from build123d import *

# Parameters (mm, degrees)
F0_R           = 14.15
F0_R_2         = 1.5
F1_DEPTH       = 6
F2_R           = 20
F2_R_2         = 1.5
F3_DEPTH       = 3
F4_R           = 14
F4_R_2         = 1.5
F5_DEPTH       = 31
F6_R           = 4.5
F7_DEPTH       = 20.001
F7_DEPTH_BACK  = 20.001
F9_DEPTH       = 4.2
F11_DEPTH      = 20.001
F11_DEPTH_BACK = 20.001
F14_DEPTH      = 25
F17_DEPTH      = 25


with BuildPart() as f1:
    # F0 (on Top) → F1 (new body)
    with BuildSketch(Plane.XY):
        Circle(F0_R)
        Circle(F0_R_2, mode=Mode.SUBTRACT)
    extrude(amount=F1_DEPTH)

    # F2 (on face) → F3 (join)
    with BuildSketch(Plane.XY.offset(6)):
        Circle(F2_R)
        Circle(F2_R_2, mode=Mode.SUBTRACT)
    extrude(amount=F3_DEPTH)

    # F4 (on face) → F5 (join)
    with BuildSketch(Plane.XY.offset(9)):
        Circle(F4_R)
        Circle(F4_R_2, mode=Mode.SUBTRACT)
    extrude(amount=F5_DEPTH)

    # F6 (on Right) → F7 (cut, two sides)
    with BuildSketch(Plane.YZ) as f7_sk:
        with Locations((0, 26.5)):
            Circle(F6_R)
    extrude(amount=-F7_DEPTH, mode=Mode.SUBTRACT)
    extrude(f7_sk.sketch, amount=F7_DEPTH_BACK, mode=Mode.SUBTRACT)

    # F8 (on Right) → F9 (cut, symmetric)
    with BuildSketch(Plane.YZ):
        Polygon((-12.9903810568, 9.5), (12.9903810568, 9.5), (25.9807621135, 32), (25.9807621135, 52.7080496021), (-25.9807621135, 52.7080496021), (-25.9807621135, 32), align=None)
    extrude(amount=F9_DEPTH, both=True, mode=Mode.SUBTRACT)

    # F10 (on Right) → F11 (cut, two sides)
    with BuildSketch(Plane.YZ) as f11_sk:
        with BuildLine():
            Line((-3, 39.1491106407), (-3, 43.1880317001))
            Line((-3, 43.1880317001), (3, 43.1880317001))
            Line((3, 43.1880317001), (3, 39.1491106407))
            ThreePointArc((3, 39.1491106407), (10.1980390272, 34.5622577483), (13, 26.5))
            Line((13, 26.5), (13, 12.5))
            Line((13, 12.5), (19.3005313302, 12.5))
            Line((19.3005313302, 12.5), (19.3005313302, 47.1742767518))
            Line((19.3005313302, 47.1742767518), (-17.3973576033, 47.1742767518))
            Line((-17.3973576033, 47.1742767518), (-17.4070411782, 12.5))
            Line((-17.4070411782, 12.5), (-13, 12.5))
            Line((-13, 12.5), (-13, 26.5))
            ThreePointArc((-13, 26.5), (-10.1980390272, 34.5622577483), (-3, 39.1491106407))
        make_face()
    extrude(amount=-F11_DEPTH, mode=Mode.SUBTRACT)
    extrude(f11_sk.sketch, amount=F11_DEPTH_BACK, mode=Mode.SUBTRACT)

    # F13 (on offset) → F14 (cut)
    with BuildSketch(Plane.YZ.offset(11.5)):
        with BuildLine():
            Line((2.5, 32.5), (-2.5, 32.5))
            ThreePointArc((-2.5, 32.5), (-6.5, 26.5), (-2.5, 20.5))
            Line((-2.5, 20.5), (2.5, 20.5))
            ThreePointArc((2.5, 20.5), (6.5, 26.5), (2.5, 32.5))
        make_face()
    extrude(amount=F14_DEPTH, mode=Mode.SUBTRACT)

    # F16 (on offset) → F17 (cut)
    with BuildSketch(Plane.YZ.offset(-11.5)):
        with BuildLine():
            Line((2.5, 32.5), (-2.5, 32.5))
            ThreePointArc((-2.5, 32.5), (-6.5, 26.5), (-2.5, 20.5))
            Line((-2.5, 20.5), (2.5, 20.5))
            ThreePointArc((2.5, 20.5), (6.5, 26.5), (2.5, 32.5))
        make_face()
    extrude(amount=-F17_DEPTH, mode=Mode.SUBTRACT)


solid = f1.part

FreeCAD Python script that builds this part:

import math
import FreeCAD as App
import Part
import Sketcher

V = App.Vector
Q = App.Units.Quantity


def add_polygon(sketch, points):
    """Adds a closed chain of lines whose ends are joined by coincident constraints."""
    first, n = sketch.GeometryCount, len(points)
    for a, b in zip(points, points[1:] + points[:1]):
        sketch.addGeometry(Part.LineSegment(App.Vector(*a, 0), App.Vector(*b, 0)), False)
    for i in range(n):
        sketch.addConstraint(Sketcher.Constraint("Coincident", first + i, 2, first + (i + 1) % n, 1))

doc = App.newDocument("Part")
body = doc.addObject("PartDesign::Body", "Body")

# Sketch on XY plane
sketch1 = body.newObject("Sketcher::SketchObject", "Sketch")
sketch1.AttachmentSupport = (doc.getObject("XY_Plane"), [""])
sketch1.MapMode = "FlatFace"
sketch1.addGeometry([
    Part.Circle(V(0, 0, 0), V(0, 0, 1), 14.2),
    Part.Circle(V(0, 0, 0), V(0, 0, 1), 1.5),
], False)
sketch1.addConstraint([
    Sketcher.Constraint("Coincident", 0, 3, -1, 1),
    Sketcher.Constraint("Coincident", 1, 3, -1, 1),
    Sketcher.Constraint("Diameter", 1, Q("3 mm")),
    Sketcher.Constraint("Diameter", 0, Q("28.3 mm")),
])
pad1 = body.newObject("PartDesign::Pad", "Pad")
pad1.Profile = sketch1
pad1.Length = 6

# Sketch on XY plane
sketch2 = body.newObject("Sketcher::SketchObject", "Sketch001")
sketch2.AttachmentSupport = (doc.getObject("XY_Plane"), [""])
sketch2.MapMode = "FlatFace"
sketch2.AttachmentOffset = App.Placement(V(0, 0, 6), App.Rotation())
sketch2.addGeometry([
    Part.Circle(V(0, 0, 0), V(0, 0, 1), 20),
    Part.Circle(V(0, 0, 0), V(0, 0, 1), 1.5),
], False)
sketch2.addConstraint([
    Sketcher.Constraint("Coincident", 0, 3, -1, 1),
    Sketcher.Constraint("Coincident", 1, 3, -1, 1),
    Sketcher.Constraint("Diameter", 0, Q("40 mm")),
    Sketcher.Constraint("Diameter", 1, Q("3 mm")),
])
pad2 = body.newObject("PartDesign::Pad", "Pad001")
pad2.Profile = sketch2
pad2.Length = 3

# Sketch on XY plane
sketch3 = body.newObject("Sketcher::SketchObject", "Sketch002")
sketch3.AttachmentSupport = (doc.getObject("XY_Plane"), [""])
sketch3.MapMode = "FlatFace"
sketch3.AttachmentOffset = App.Placement(V(0, 0, 9), App.Rotation())
sketch3.addGeometry([
    Part.Circle(V(0, 0, 0), V(0, 0, 1), 14),
    Part.Circle(V(0, 0, 0), V(0, 0, 1), 1.5),
], False)
sketch3.addConstraint([
    Sketcher.Constraint("Coincident", 0, 3, -1, 1),
    Sketcher.Constraint("Coincident", 1, 3, -1, 1),
    Sketcher.Constraint("Diameter", 0, Q("28 mm")),
    Sketcher.Constraint("Diameter", 1, Q("3 mm")),
])
pad3 = body.newObject("PartDesign::Pad", "Pad002")
pad3.Profile = sketch3
pad3.Length = 31

# Sketch on YZ plane
sketch4 = body.newObject("Sketcher::SketchObject", "Sketch003")
sketch4.AttachmentSupport = (doc.getObject("YZ_Plane"), [""])
sketch4.MapMode = "FlatFace"
sketch4.addGeometry(Part.Circle(V(0, 26.5, 0), V(0, 0, 1), 4.5), False)
sketch4.addConstraint([
    Sketcher.Constraint("PointOnObject", 0, 3, -2),
    Sketcher.Constraint("Diameter", 0, Q("9 mm")),
    Sketcher.Constraint("DistanceY", -1, 1, 0, 3, Q("26.5 mm")),
])
pocket1 = body.newObject("PartDesign::Pocket", "Pocket")
pocket1.Profile = sketch4
pocket1.Type = "ThroughAll"
pocket1.Midplane = True

# Sketch on YZ plane
sketch5 = body.newObject("Sketcher::SketchObject", "Sketch004")
sketch5.AttachmentSupport = (doc.getObject("YZ_Plane"), [""])
sketch5.MapMode = "FlatFace"
add_polygon(sketch5, [(-13, 10), (13, 10), (26, 32), (26, 53), (-26, 53), (-26, 32)])  # lines 0-5
sketch5.addConstraint([
    Sketcher.Constraint("Horizontal", 0),
    Sketcher.Constraint("Vertical", 2),
    Sketcher.Constraint("Horizontal", 3),
    Sketcher.Constraint("Vertical", 4),
    Sketcher.Constraint("Symmetric", 1, 2, 4, 2, -2),
    Sketcher.Constraint("Equal", 1, 5),
    Sketcher.Constraint("Angle", 1, Q("60 deg")),
    Sketcher.Constraint("DistanceY", -1, 1, 1, 2, Q("32 mm")),
    Sketcher.Constraint("DistanceY", -1, 1, 0, 2, Q("9.5 mm")),
    Sketcher.Constraint("DistanceY", 2, 1, 2, 2, Q("20.70805 mm")),
    Sketcher.Constraint("DistanceX", 0, 1, 0, 2, Q("25.980762 mm")),
])
pocket2 = body.newObject("PartDesign::Pocket", "Pocket001")
pocket2.Profile = sketch5
pocket2.Length = 8.4
pocket2.Midplane = True

# Sketch on YZ plane
sketch6 = body.newObject("Sketcher::SketchObject", "Sketch005")
sketch6.AttachmentSupport = (doc.getObject("YZ_Plane"), [""])
sketch6.MapMode = "FlatFace"
sketch6.addGeometry([
    Part.LineSegment(V(-3, 39.1, 0), V(-3, 43.2, 0)),  # 0
    Part.LineSegment(V(-3, 43.2, 0), V(3, 43.2, 0)),  # 1
    Part.LineSegment(V(3, 43.2, 0), V(3, 39.1, 0)),  # 2
    Part.ArcOfCircle(Part.Circle(V(0, 26.5, 0), V(0, 0, 1), 13), math.radians(0), math.radians(77)),  # 3
    Part.LineSegment(V(13, 26.5, 0), V(13, 12.5, 0)),  # 4
    Part.LineSegment(V(13, 12.5, 0), V(19.3, 12.5, 0)),  # 5
    Part.LineSegment(V(19.3, 12.5, 0), V(19.3, 47.2, 0)),  # 6
    Part.LineSegment(V(19.3, 47.2, 0), V(-17.4, 47.2, 0)),  # 7
    Part.LineSegment(V(-17.4, 47.2, 0), V(-17.4, 12.5, 0)),  # 8
    Part.LineSegment(V(-17.4, 12.5, 0), V(-13, 12.5, 0)),  # 9
    Part.LineSegment(V(-13, 12.5, 0), V(-13, 26.5, 0)),  # 10
    Part.ArcOfCircle(Part.Circle(V(0, 26.5, 0), V(0, 0, 1), 13), math.radians(103), math.radians(180)),  # 11
], False)
sketch6.addConstraint([
    Sketcher.Constraint("Coincident", 0, 2, 1, 1),
    Sketcher.Constraint("Coincident", 1, 2, 2, 1),
    Sketcher.Constraint("Coincident", 2, 2, 3, 2),
    Sketcher.Constraint("Tangent", 3, 1, 4, 1),
    Sketcher.Constraint("Coincident", 4, 2, 5, 1),
    Sketcher.Constraint("Coincident", 5, 2, 6, 1),
    Sketcher.Constraint("Coincident", 6, 2, 7, 1),
    Sketcher.Constraint("Coincident", 7, 2, 8, 1),
    Sketcher.Constraint("Coincident", 8, 2, 9, 1),
    Sketcher.Constraint("Coincident", 9, 2, 10, 1),
    Sketcher.Constraint("Tangent", 10, 2, 11, 2),
    Sketcher.Constraint("Coincident", 11, 1, 0, 1),
    Sketcher.Constraint("Vertical", 0),
    Sketcher.Constraint("Horizontal", 1),
    Sketcher.Constraint("Vertical", 2),
    Sketcher.Constraint("Vertical", 4),
    Sketcher.Constraint("Horizontal", 5),
    Sketcher.Constraint("Vertical", 6),
    Sketcher.Constraint("Horizontal", 7),
    Sketcher.Constraint("Horizontal", 9),
    Sketcher.Constraint("Vertical", 10),
    Sketcher.Constraint("Coincident", 11, 3, 3, 3),
    Sketcher.Constraint("Equal", 3, 11),
    Sketcher.Constraint("Symmetric", 4, 2, 9, 2, -2),
    Sketcher.Constraint("Horizontal", 2, 2, 11, 1),
    Sketcher.Constraint("Radius", 3, Q("13 mm")),
    Sketcher.Constraint("DistanceX", 1, 1, 1, 2, Q("6 mm")),
    Sketcher.Constraint("DistanceY", 4, 2, 4, 1, Q("14 mm")),
    Sketcher.Constraint("DistanceY", -1, 1, 3, 3, Q("26.5 mm")),
    Sketcher.Constraint("DistanceX", 5, 1, 5, 2, Q("6.300531 mm")),
    Sketcher.Constraint("DistanceX", 7, 2, 7, 1, Q("36.697889 mm")),
    Sketcher.Constraint("DistanceX", 9, 1, 9, 2, Q("4.407041 mm")),
    Sketcher.Constraint("DistanceY", 0, 1, 0, 2, Q("4.038921 mm")),
    Sketcher.Constraint("Distance", 8, Q("34.674278 mm")),
])
pocket3 = body.newObject("PartDesign::Pocket", "Pocket002")
pocket3.Profile = sketch6
pocket3.Type = "ThroughAll"
pocket3.Midplane = True

# Sketch on YZ plane
sketch7 = body.newObject("Sketcher::SketchObject", "Sketch006")
sketch7.AttachmentSupport = (doc.getObject("YZ_Plane"), [""])
sketch7.MapMode = "FlatFace"
sketch7.AttachmentOffset = App.Placement(V(0, 0, 11.5), App.Rotation())
sketch7.addGeometry([
    Part.LineSegment(V(2, 32, 0), V(-2, 32, 0)),
    Part.ArcOfCircle(Part.Circle(V(0, 26, 0), V(0, 0, 1), 6), math.radians(113), math.radians(247)),
    Part.LineSegment(V(-2, 20, 0), V(2, 20, 0)),
    Part.ArcOfCircle(Part.Circle(V(0, 26, 0), V(0, 0, 1), 6), math.radians(-67), math.radians(67)),
], False)
sketch7.addConstraint([
    Sketcher.Constraint("Coincident", 0, 2, 1, 1),
    Sketcher.Constraint("Coincident", 1, 2, 2, 1),
    Sketcher.Constraint("Coincident", 2, 2, 3, 1),
    Sketcher.Constraint("Coincident", 3, 2, 0, 1),
    Sketcher.Constraint("Horizontal", 0),
    Sketcher.Constraint("Horizontal", 2),
    Sketcher.Constraint("Coincident", 3, 3, 1, 3),
    Sketcher.Constraint("Equal", 1, 3),
    Sketcher.Constraint("PointOnObject", 1, 3, -2),
    Sketcher.Constraint("Vertical", 0, 2, 1, 2),
    Sketcher.Constraint("Radius", 1, Q("6.5 mm")),
    Sketcher.Constraint("DistanceX", 0, 2, 0, 1, Q("5 mm")),
    Sketcher.Constraint("DistanceY", -1, 1, 1, 3, Q("26.5 mm")),
])
pocket4 = body.newObject("PartDesign::Pocket", "Pocket003")
pocket4.Profile = sketch7
pocket4.Length = 25
pocket4.Reversed = True

# Sketch on YZ plane
sketch8 = body.newObject("Sketcher::SketchObject", "Sketch007")
sketch8.AttachmentSupport = (doc.getObject("YZ_Plane"), [""])
sketch8.MapMode = "FlatFace"
sketch8.AttachmentOffset = App.Placement(V(0, 0, -11.5), App.Rotation())
sketch8.addGeometry([
    Part.LineSegment(V(2, 32, 0), V(-2, 32, 0)),
    Part.ArcOfCircle(Part.Circle(V(0, 26, 0), V(0, 0, 1), 6), math.radians(113), math.radians(247)),
    Part.LineSegment(V(-2, 20, 0), V(2, 20, 0)),
    Part.ArcOfCircle(Part.Circle(V(0, 26, 0), V(0, 0, 1), 6), math.radians(-67), math.radians(67)),
], False)
sketch8.addConstraint([
    Sketcher.Constraint("Coincident", 0, 2, 1, 1),
    Sketcher.Constraint("Coincident", 1, 2, 2, 1),
    Sketcher.Constraint("Coincident", 2, 2, 3, 1),
    Sketcher.Constraint("Coincident", 3, 2, 0, 1),
    Sketcher.Constraint("Horizontal", 0),
    Sketcher.Constraint("Horizontal", 2),
    Sketcher.Constraint("Coincident", 3, 3, 1, 3),
    Sketcher.Constraint("Equal", 1, 3),
    Sketcher.Constraint("PointOnObject", 1, 3, -2),
    Sketcher.Constraint("Vertical", 0, 2, 1, 2),
    Sketcher.Constraint("Radius", 1, Q("6.5 mm")),
    Sketcher.Constraint("DistanceX", 0, 2, 0, 1, Q("5 mm")),
    Sketcher.Constraint("DistanceY", -1, 1, 1, 3, Q("26.5 mm")),
])
pocket5 = body.newObject("PartDesign::Pocket", "Pocket004")
pocket5.Profile = sketch8
pocket5.Length = 25

doc.recompute()
